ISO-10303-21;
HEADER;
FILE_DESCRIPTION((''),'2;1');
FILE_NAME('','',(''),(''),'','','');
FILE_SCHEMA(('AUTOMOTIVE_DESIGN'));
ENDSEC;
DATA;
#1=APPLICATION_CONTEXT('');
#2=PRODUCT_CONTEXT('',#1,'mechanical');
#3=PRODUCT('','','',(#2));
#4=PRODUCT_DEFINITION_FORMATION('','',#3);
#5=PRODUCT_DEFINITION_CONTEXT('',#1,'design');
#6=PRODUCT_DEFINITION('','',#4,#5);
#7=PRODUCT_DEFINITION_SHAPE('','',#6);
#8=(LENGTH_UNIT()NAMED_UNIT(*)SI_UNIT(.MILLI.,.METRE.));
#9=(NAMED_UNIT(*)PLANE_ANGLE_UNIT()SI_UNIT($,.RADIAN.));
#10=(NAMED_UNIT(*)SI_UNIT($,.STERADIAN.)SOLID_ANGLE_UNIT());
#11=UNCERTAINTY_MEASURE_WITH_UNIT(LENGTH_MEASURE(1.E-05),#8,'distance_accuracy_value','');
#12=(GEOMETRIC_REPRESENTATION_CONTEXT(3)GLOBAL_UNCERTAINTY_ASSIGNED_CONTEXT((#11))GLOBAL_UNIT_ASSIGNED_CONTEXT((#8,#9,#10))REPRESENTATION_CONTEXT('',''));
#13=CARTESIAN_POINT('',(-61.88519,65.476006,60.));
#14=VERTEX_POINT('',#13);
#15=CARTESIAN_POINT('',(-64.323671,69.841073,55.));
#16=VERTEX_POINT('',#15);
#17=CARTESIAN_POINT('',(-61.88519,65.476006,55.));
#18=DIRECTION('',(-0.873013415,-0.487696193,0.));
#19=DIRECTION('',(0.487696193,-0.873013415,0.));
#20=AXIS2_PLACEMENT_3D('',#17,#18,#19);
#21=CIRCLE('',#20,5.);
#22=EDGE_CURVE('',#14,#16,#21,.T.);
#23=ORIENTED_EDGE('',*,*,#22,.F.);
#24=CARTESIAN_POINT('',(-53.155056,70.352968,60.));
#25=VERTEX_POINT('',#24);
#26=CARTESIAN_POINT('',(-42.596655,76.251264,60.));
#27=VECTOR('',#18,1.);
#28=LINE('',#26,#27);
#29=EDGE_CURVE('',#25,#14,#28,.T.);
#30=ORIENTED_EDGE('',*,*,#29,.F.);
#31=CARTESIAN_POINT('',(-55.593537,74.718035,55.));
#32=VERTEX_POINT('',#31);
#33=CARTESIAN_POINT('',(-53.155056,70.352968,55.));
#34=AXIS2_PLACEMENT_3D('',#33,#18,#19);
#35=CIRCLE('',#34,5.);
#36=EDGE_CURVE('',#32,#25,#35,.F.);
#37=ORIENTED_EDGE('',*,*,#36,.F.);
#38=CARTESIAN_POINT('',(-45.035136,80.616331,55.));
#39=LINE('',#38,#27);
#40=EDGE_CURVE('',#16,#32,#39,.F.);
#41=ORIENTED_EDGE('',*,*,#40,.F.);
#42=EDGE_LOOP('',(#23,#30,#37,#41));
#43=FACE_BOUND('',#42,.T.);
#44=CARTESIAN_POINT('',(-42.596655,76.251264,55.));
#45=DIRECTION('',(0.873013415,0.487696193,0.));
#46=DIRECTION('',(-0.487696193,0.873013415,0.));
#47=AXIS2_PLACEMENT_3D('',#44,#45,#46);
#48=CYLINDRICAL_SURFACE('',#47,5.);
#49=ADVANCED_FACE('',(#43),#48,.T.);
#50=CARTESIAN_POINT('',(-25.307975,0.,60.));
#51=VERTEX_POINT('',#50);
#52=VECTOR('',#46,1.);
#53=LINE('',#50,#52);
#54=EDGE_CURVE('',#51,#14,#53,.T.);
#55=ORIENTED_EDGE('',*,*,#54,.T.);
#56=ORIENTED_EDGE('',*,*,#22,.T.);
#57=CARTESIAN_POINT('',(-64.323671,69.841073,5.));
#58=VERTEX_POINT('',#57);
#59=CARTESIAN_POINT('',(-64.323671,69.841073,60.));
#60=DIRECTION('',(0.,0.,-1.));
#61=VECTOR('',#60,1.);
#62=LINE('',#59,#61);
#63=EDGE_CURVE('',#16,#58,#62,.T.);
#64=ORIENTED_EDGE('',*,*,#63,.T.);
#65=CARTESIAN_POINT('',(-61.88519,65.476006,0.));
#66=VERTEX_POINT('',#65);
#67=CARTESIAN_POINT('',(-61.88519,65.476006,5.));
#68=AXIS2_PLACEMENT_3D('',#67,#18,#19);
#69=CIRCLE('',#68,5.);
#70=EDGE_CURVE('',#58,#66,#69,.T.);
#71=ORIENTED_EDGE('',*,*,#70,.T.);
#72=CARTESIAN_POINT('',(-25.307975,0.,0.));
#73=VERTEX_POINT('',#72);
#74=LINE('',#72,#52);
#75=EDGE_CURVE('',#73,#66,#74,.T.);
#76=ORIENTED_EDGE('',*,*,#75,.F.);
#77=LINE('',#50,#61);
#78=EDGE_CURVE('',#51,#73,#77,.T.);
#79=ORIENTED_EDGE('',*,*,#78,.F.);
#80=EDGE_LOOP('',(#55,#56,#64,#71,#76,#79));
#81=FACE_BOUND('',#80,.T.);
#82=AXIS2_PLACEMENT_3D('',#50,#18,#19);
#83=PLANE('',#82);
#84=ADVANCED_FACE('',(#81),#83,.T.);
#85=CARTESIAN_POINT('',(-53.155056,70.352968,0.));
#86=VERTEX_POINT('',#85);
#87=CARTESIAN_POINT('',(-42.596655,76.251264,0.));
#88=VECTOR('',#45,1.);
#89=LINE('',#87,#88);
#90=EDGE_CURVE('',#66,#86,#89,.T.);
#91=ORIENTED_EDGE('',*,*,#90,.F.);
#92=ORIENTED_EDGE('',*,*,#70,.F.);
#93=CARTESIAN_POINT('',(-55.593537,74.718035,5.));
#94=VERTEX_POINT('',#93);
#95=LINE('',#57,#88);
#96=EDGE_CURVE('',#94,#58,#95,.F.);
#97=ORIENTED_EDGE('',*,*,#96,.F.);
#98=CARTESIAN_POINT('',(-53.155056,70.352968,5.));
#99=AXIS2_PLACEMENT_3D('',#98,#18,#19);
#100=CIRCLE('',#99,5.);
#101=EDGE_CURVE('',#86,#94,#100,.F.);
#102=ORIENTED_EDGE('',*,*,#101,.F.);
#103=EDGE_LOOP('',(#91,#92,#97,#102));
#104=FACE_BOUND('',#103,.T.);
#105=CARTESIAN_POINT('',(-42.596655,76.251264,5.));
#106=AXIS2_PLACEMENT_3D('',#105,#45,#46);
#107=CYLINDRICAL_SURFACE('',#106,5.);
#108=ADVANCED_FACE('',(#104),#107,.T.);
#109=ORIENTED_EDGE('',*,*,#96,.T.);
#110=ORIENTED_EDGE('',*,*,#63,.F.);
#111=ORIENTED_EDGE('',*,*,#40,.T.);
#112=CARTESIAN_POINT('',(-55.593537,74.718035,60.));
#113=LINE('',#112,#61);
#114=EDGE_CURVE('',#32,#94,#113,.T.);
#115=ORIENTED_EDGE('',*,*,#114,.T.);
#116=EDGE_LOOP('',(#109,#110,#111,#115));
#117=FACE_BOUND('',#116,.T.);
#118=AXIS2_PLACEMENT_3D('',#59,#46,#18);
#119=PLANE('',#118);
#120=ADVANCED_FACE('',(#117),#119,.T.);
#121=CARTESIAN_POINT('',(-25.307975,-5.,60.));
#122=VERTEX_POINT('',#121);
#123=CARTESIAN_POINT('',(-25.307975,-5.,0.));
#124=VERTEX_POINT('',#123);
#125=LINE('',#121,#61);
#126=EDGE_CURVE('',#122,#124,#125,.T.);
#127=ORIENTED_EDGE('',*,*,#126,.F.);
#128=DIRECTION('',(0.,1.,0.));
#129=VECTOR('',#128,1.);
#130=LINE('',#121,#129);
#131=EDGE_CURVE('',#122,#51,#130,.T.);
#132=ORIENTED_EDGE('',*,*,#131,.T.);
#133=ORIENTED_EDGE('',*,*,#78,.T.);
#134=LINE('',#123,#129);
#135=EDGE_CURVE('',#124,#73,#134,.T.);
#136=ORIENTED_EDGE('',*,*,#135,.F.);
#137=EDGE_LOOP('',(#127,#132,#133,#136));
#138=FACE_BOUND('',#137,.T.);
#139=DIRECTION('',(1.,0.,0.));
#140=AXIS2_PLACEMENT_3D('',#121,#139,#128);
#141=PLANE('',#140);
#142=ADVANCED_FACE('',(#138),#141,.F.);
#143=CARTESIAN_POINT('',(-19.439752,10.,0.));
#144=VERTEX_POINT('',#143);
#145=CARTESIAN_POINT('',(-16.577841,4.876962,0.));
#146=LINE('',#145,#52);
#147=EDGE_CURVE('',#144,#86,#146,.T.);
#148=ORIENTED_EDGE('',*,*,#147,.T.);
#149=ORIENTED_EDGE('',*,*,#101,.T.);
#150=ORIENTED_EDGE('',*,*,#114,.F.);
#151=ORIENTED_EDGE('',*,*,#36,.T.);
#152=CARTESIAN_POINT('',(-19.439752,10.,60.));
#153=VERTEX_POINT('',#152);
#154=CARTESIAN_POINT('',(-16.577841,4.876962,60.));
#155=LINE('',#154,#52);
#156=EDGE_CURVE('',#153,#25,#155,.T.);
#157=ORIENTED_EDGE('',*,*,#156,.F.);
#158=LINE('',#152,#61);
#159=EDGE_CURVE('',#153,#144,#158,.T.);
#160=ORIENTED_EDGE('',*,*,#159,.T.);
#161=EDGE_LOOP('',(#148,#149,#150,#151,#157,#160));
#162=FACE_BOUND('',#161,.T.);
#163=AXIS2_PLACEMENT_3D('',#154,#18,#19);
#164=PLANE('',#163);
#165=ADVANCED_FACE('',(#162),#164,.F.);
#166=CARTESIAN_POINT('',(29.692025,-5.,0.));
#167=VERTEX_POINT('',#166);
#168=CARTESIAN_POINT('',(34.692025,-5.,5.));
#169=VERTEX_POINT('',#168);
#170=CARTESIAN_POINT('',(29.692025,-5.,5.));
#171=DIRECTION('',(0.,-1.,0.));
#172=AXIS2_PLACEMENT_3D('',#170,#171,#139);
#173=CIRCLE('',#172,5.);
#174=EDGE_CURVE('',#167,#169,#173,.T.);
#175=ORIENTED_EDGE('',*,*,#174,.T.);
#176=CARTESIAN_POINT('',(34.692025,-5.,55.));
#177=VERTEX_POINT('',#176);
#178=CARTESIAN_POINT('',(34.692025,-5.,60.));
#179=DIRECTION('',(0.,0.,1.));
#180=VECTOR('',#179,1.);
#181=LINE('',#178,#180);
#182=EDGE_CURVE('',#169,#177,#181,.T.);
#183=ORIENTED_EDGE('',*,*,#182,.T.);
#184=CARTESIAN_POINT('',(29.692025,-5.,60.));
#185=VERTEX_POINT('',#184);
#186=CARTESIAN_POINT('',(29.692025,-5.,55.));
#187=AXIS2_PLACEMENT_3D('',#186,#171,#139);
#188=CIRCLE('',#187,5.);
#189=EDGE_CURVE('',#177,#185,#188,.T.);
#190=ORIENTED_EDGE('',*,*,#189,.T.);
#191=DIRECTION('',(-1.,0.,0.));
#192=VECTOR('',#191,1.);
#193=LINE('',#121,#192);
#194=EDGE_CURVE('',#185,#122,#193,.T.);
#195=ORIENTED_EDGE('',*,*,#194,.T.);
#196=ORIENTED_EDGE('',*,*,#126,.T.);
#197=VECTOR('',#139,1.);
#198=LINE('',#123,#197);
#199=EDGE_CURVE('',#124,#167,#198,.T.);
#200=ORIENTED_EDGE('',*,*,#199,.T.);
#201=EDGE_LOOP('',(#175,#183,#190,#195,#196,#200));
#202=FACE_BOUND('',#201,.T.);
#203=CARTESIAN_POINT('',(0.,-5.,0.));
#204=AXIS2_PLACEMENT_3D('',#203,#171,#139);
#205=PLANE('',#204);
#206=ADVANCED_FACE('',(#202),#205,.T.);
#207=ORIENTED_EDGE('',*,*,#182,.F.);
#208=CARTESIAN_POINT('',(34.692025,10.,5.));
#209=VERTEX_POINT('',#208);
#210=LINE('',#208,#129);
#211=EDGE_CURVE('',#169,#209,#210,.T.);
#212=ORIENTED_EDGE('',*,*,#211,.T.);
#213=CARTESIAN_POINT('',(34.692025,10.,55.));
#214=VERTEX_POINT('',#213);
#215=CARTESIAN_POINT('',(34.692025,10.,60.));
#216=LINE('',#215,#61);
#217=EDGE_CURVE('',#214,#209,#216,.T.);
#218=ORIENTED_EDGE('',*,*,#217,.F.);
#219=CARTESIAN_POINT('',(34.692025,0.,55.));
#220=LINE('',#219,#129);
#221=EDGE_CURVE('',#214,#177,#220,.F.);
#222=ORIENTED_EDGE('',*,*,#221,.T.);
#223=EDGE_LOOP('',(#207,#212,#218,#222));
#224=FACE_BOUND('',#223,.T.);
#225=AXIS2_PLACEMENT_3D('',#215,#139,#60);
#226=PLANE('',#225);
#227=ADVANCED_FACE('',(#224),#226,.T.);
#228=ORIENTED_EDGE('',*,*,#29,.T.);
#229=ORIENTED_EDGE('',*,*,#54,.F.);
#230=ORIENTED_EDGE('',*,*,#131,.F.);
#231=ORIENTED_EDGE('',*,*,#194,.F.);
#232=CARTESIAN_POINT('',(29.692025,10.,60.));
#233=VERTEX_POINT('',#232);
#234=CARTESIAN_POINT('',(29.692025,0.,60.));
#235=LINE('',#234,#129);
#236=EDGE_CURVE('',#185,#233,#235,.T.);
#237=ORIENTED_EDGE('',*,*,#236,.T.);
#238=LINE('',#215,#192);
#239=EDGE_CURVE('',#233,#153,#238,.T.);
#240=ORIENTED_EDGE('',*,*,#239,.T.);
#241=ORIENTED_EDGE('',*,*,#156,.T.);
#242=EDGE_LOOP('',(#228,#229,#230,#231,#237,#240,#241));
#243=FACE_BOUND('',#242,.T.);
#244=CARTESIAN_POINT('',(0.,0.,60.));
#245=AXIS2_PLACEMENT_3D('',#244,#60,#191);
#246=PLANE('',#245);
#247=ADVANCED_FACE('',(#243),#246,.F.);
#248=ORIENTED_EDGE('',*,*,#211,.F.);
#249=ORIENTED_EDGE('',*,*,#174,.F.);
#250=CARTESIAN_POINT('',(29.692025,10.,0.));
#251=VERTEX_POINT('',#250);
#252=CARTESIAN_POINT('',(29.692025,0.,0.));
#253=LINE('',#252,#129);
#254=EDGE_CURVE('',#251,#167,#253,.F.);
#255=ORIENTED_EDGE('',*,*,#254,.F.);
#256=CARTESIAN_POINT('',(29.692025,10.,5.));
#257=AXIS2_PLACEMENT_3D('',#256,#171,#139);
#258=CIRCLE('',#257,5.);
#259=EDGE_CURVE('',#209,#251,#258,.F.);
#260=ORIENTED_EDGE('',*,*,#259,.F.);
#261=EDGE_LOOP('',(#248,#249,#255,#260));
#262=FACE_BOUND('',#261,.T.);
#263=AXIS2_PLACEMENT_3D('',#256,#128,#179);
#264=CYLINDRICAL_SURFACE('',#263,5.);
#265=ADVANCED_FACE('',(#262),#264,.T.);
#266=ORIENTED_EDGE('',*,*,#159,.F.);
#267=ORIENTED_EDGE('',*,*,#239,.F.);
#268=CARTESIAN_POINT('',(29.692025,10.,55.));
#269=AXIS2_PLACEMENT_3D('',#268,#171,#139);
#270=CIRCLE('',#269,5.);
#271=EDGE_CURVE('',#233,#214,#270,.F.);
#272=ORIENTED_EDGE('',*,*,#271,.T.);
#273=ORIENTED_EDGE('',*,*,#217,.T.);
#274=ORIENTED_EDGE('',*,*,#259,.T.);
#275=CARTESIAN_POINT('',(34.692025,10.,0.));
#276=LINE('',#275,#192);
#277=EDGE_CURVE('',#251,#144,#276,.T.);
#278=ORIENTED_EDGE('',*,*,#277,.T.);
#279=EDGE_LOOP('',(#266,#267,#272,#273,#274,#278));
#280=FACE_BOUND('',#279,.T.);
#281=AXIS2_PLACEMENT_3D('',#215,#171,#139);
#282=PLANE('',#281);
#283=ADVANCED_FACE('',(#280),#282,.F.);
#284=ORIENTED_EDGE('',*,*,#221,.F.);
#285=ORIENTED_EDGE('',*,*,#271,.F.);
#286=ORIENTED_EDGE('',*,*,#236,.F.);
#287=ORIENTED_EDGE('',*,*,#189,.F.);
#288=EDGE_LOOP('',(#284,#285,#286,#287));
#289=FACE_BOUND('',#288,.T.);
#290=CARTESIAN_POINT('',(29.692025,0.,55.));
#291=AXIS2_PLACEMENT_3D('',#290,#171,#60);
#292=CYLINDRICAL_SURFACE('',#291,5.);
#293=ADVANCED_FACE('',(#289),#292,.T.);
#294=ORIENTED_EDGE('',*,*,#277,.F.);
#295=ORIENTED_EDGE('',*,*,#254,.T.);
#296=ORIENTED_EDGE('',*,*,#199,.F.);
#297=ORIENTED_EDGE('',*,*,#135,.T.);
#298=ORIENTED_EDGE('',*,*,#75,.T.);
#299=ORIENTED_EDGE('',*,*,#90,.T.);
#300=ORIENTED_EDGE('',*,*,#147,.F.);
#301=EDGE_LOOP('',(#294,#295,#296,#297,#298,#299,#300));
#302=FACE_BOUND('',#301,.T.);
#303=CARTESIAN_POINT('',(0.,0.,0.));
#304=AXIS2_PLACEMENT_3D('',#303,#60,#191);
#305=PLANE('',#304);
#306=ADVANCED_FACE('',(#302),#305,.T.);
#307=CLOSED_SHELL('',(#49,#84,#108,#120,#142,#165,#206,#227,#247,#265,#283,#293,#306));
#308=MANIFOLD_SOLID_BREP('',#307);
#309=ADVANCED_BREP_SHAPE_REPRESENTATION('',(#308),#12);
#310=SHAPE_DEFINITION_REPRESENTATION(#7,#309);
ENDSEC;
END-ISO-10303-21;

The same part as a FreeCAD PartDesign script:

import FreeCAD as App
import Part
import Sketcher
from FreeCAD import Vector
Q = App.Units.Quantity


def edges_at(feature, points):
    """Names of the edges that pass closest to the given points."""
    edges = feature.Shape.Edges
    near = lambda p: min(range(len(edges)), key=lambda i: edges[i].distToShape(Part.Vertex(*p))[0])
    return sorted({f"Edge{near(p) + 1}" for p in points})


def add_polygon(sketch, points):
    """Adds a closed chain of lines whose ends are joined by coincident constraints."""
    first, n = sketch.GeometryCount, len(points)
    for a, b in zip(points, points[1:] + points[:1]):
        sketch.addGeometry(Part.LineSegment(App.Vector(*a, 0), App.Vector(*b, 0)), False)
    for i in range(n):
        sketch.addConstraint(Sketcher.Constraint("Coincident", first + i, 2, first + (i + 1) % n, 1))

doc = App.newDocument("Part")
params = doc.addObject("Spreadsheet::Sheet", "Params")
for row, (alias, value) in enumerate([
    ("sketch1_width", "60 mm"),
    ("sketch1_height", "10 mm"),
    ("sketch1_length", "10 mm"),
    ("sketch1_length2", "80 mm"),
    ("pad1_length", "60 mm"),
    ("sketch2_width", "60 mm"),
    ("pad2_length", "5 mm"),
    ("fillet_radius", "5 mm"),
    ("fillet2_radius", "5 mm"),
    ("fillet3_radius", "5 mm"),
    ("fillet4_radius", "5 mm"),
], start=1):
    params.set(f"A{row}", alias)
    params.set(f"B{row}", "=" + value)
    params.setAlias(f"B{row}", alias)

body = doc.addObject("PartDesign::Body", "Body")

sketch1 = body.newObject("Sketcher::SketchObject", "Sketch")
sketch1.AttachmentSupport = (doc.getObject("XY_Plane"), [""])
sketch1.MapMode = "FlatFace"
add_polygon(sketch1, [(-25, 0), (35, 0), (35, 10), (-19, 10), (-56, 75), (-64, 70)])
sketch1.addConstraint([
    Sketcher.Constraint("Horizontal", 0),
    Sketcher.Constraint("Vertical", 1),
    Sketcher.Constraint("Horizontal", 2),
    Sketcher.Constraint("PointOnObject", 0, 2, -1),
    Sketcher.Constraint("Perpendicular", 3, 4),
    Sketcher.Constraint("Perpendicular", 4, 5),
    Sketcher.Constraint("DistanceX", 0, 1, 0, 2, Q("60 mm")),
    Sketcher.Constraint("DistanceY", 1, 1, 1, 2, Q("10 mm")),
    Sketcher.Constraint("Distance", 4, Q("10 mm")),
    Sketcher.Constraint("Distance", 5, Q("80 mm")),
    Sketcher.Constraint("DistanceX", 2, 2, 2, 1, Q("54.131776 mm")),
    Sketcher.Constraint("DistanceX", 2, 2, -1, 1, Q("19.439752 mm")),
])
sketch1.setExpression("Constraints[12]", "Params.sketch1_width")
sketch1.setExpression("Constraints[13]", "Params.sketch1_height")
sketch1.setExpression("Constraints[14]", "Params.sketch1_length")
sketch1.setExpression("Constraints[15]", "Params.sketch1_length2")
pad1 = body.newObject("PartDesign::Pad", "Pad")
pad1.Profile = sketch1
pad1.setExpression("Length", "Params.pad1_length")

sketch2 = body.newObject("Sketcher::SketchObject", "Sketch001")
sketch2.AttachmentSupport = (doc.getObject("XZ_Plane"), [""])
sketch2.MapMode = "FlatFace"
add_polygon(sketch2, [(-25, 60), (-25, 0), (35, 0), (35, 60)])
sketch2.addConstraint([
    Sketcher.Constraint("Vertical", 0),
    Sketcher.Constraint("Horizontal", 1),
    Sketcher.Constraint("Vertical", 2),
    Sketcher.Constraint("Horizontal", 3),
    Sketcher.Constraint("PointOnObject", 0, 2, -1),
    Sketcher.Constraint("Equal", 3, 0),
    Sketcher.Constraint("DistanceX", 1, 1, 1, 2, Q("60 mm")),
    Sketcher.Constraint("DistanceX", 0, 2, -1, 1, Q("25.307975 mm")),
])
sketch2.setExpression("Constraints[10]", "Params.sketch2_width")
pad2 = body.newObject("PartDesign::Pad", "Pad001")
pad2.Profile = sketch2
pad2.setExpression("Length", "Params.pad2_length")
doc.recompute()

fillet = body.newObject("PartDesign::Fillet", "Fillet")
fillet.Base = (pad2, edges_at(pad2, [(-59.959, 72.28, 60)]))
fillet.setExpression("Radius", "Params.fillet_radius")
doc.recompute()

fillet2 = body.newObject("PartDesign::Fillet", "Fillet001")
fillet2.Base = (fillet, edges_at(fillet, [(34.692, 2.5, 60)]))
fillet2.setExpression("Radius", "Params.fillet2_radius")
doc.recompute()

fillet3 = body.newObject("PartDesign::Fillet", "Fillet002")
fillet3.Base = (fillet2, edges_at(fillet2, [(34.692, 2.5, 0)]))
fillet3.setExpression("Radius", "Params.fillet3_radius")
doc.recompute()

fillet4 = body.newObject("PartDesign::Fillet", "Fillet003")
fillet4.Base = (fillet3, edges_at(fillet3, [(-59.959, 72.28, 0)]))
fillet4.setExpression("Radius", "Params.fillet4_radius")

doc.recompute()
